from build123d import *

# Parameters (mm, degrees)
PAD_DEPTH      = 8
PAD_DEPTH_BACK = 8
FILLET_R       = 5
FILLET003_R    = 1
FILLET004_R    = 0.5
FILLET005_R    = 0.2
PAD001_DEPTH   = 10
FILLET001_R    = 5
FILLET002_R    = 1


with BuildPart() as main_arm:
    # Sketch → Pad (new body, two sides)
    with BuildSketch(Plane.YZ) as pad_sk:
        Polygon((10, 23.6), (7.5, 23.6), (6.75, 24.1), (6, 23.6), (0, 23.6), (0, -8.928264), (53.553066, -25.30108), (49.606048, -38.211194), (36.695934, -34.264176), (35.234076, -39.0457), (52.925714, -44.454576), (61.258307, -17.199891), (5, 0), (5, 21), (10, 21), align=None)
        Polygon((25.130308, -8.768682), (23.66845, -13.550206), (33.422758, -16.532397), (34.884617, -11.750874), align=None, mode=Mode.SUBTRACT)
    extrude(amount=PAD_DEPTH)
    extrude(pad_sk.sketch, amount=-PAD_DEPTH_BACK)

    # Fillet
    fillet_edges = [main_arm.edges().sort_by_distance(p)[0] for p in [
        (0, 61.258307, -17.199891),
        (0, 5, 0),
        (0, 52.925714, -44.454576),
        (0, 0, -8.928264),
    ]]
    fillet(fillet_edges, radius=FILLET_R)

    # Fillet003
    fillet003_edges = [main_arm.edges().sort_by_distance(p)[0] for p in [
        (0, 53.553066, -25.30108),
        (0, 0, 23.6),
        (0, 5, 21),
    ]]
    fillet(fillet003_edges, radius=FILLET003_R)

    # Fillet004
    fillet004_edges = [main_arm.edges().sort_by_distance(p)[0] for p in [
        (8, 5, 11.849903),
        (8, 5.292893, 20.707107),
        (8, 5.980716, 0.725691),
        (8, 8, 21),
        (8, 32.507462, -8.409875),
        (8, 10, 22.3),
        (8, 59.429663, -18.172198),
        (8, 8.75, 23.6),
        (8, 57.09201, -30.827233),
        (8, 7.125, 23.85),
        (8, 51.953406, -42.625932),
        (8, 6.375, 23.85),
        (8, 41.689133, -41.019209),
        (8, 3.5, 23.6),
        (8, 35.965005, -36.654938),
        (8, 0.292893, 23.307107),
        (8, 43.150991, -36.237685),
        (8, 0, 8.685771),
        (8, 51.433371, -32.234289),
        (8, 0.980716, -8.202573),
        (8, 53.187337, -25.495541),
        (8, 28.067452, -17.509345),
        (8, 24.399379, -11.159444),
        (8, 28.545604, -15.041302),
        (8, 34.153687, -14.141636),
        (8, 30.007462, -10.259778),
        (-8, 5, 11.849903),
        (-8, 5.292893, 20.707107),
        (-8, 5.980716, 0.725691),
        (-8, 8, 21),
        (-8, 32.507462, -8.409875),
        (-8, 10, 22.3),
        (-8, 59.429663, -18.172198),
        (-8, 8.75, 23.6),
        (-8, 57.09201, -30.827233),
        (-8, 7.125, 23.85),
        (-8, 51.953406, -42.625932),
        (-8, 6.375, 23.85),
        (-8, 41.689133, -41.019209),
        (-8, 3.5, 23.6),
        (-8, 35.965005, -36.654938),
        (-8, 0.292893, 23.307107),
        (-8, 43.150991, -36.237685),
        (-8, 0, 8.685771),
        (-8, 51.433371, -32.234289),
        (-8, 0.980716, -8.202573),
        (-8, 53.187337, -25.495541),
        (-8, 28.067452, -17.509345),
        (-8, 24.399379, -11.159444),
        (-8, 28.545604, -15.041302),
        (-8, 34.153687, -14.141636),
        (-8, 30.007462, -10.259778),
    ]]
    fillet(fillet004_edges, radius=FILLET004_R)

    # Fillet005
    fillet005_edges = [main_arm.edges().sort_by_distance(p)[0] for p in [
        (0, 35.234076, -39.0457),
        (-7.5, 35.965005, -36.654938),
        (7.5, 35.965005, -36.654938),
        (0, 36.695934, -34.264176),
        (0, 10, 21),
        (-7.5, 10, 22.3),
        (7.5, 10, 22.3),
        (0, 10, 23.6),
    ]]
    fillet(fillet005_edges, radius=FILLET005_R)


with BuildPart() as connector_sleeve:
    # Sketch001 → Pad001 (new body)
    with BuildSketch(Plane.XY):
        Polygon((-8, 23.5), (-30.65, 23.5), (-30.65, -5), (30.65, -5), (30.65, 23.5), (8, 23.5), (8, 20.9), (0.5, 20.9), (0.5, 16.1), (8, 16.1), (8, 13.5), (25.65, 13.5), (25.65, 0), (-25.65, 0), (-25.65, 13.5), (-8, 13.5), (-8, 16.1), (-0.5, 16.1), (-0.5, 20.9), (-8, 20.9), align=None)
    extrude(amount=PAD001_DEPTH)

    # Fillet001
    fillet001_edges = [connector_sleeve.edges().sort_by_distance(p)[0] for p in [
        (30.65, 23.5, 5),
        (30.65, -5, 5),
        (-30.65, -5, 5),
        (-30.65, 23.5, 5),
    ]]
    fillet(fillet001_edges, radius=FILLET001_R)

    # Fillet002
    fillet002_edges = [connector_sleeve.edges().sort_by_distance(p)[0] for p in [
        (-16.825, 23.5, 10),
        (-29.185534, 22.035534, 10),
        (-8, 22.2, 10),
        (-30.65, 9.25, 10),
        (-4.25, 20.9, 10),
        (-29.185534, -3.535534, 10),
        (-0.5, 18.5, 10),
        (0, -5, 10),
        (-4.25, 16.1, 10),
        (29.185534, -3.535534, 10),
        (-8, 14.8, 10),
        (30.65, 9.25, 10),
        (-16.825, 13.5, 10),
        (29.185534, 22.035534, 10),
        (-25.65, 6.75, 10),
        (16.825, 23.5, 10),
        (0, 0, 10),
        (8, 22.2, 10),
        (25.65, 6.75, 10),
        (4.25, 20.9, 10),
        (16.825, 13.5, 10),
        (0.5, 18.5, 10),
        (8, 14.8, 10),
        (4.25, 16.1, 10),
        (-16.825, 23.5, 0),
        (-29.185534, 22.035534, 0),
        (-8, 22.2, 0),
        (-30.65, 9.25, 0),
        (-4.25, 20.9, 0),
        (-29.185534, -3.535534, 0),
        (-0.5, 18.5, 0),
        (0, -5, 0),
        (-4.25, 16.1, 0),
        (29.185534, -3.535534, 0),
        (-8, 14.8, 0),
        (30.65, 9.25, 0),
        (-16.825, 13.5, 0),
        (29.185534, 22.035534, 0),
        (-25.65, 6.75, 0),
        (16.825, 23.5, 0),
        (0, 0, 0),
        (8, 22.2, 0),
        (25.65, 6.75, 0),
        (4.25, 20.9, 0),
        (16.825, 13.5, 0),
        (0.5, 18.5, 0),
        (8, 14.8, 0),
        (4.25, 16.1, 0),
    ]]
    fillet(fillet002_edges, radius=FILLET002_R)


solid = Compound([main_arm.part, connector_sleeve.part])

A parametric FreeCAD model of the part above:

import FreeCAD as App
import Part
import Sketcher
from FreeCAD import Vector
Q = App.Units.Quantity


def edges_at(feature, points):
    """Names of the edges that pass closest to the given points."""
    edges = feature.Shape.Edges
    near = lambda p: min(range(len(edges)), key=lambda i: edges[i].distToShape(Part.Vertex(*p))[0])
    return sorted({f"Edge{near(p) + 1}" for p in points})


def add_polygon(sketch, points):
    """Adds a closed chain of lines whose ends are joined by coincident constraints."""
    first, n = sketch.GeometryCount, len(points)
    for a, b in zip(points, points[1:] + points[:1]):
        sketch.addGeometry(Part.LineSegment(App.Vector(*a, 0), App.Vector(*b, 0)), False)
    for i in range(n):
        sketch.addConstraint(Sketcher.Constraint("Coincident", first + i, 2, first + (i + 1) % n, 1))

doc = App.newDocument("Part")
body = doc.addObject("PartDesign::Body", "Body")

sketch1 = doc.addObject("Sketcher::SketchObject", "Sketch")
body.addObject(sketch1)
sketch1.AttachmentSupport = (doc.YZ_Plane, [""])
sketch1.MapMode = "FlatFace"
add_polygon(sketch1, [(10, 23.6), (7.5, 23.6), (6.75, 24.1), (6, 23.6), (0, 23.6), (0, -8.928264), (53.553066, -25.30108), (49.606048, -38.211194), (36.695934, -34.264176), (35.234076, -39.0457), (52.925714, -44.454576), (61.258307, -17.199891), (5, 0), (5, 21), (10, 21)])
add_polygon(sketch1, [(23.66845, -13.550206), (25.130308, -8.768682), (34.884617, -11.750874), (33.422758, -16.532397)])
sketch1.addConstraint(Sketcher.Constraint("Horizontal", 0))
sketch1.addConstraint(Sketcher.Constraint("Horizontal", 3))
sketch1.addConstraint(Sketcher.Constraint("Vertical", 4))
sketch1.addConstraint(Sketcher.Constraint("Vertical", 12))
sketch1.addConstraint(Sketcher.Constraint("Horizontal", 13))
sketch1.addConstraint(Sketcher.Constraint("Vertical", 14))
sketch1.addConstraint(Sketcher.Constraint("PointOnObject", 3, 2, -2))
sketch1.addConstraint(Sketcher.Constraint("PointOnObject", 11, 2, -1))
sketch1.addConstraint(Sketcher.Constraint("Perpendicular", 5, 6))
sketch1.addConstraint(Sketcher.Constraint("Perpendicular", 6, 7))
sketch1.addConstraint(Sketcher.Constraint("Perpendicular", 7, 8))
sketch1.addConstraint(Sketcher.Constraint("Perpendicular", 8, 9))
sketch1.addConstraint(Sketcher.Constraint("Perpendicular", 9, 10))
sketch1.addConstraint(Sketcher.Constraint("Perpendicular", 10, 11))
sketch1.addConstraint(Sketcher.Constraint("Perpendicular", 11, 15))
sketch1.addConstraint(Sketcher.Constraint("Perpendicular", 15, 16))
sketch1.addConstraint(Sketcher.Constraint("Perpendicular", 16, 17))
sketch1.addConstraint(Sketcher.Constraint("Perpendicular", 17, 18))
sketch1.addConstraint(Sketcher.Constraint("Horizontal", 0, 2, 2, 2))
sketch1.addConstraint(Sketcher.Constraint("Equal", 1, 2))
sketch1.addConstraint(Sketcher.Constraint("Equal", 6, 7))
sketch1.addConstraint(Sketcher.Constraint("Equal", 8, 15))
sketch1.addConstraint(Sketcher.Constraint("DistanceX", 3, 2, 3, 1, Q("6 mm")))
sketch1.addConstraint(Sketcher.Constraint("DistanceX", 13, 1, 13, 2, Q("5 mm")))
sketch1.addConstraint(Sketcher.Constraint("DistanceY", 12, 1, 12, 2, Q("21 mm")))
sketch1.addConstraint(Sketcher.Constraint("Angle", 5, Q("-17.000001 deg")))
sketch1.addConstraint(Sketcher.Constraint("Distance", 5, Q("56 mm")))
sketch1.addConstraint(Sketcher.Constraint("Distance", 8, Q("5 mm")))
sketch1.addConstraint(Sketcher.Constraint("DistanceX", 0, 2, 0, 1, Q("2.5 mm")))
sketch1.addConstraint(Sketcher.Constraint("DistanceY", 14, 1, 14, 2, Q("2.6 mm")))
sketch1.addConstraint(Sketcher.Constraint("DistanceX", -1, 1, 11, 2, Q("5 mm")))
sketch1.addConstraint(Sketcher.Constraint("Distance", 6, Q("13.5 mm")))
sketch1.addConstraint(Sketcher.Constraint("Distance", 9, Q("18.5 mm")))
sketch1.addConstraint(Sketcher.Constraint("Distance", 10, Q("28.499999 mm")))
sketch1.addConstraint(Sketcher.Constraint("Distance", 16, Q("10.200001 mm")))
sketch1.addConstraint(Sketcher.Constraint("DistanceY", -1, 1, 1, 2, Q("24.1 mm")))
sketch1.addConstraint(Sketcher.Constraint("DistanceY", 5, 2, 15, 2, Q("16.532398 mm")))
sketch1.addConstraint(Sketcher.Constraint("DistanceX", -1, 1, 17, 2, Q("33.422758 mm")))
pad1 = doc.addObject("PartDesign::Pad", "Pad")
body.addObject(pad1)
pad1.Profile = sketch1
pad1.Type = "TwoLengths"
pad1.Length = 8
pad1.Length2 = 8
doc.recompute()

fillet = doc.addObject("PartDesign::Fillet", "Fillet")
body.addObject(fillet)
fillet.Base = (pad1, edges_at(pad1, [
    (0, 61.258, -17.2),
    (0, 5, 0),
    (0, 52.926, -44.455),
    (0, 0, -8.928),
]))
fillet.Radius = 5
doc.recompute()

fillet2 = doc.addObject("PartDesign::Fillet", "Fillet001")
body.addObject(fillet2)
fillet2.Base = (fillet, edges_at(fillet, [(0, 53.553, -25.301), (0, 0, 23.6), (0, 5, 21)]))
fillet2.Radius = 1
doc.recompute()

fillet3 = doc.addObject("PartDesign::Fillet", "Fillet002")
body.addObject(fillet3)
fillet3.Base = (fillet2, edges_at(fillet2, [
    (8, 5, 11.85),
    (8, 5.293, 20.707),
    (8, 5.981, 0.726),
    (8, 8, 21),
    (8, 32.507, -8.41),
    (8, 10, 22.3),
    (8, 59.43, -18.172),
    (8, 8.75, 23.6),
    (8, 57.092, -30.827),
    (8, 7.125, 23.85),
    (8, 51.953, -42.626),
    (8, 6.375, 23.85),
    (8, 41.689, -41.019),
    (8, 3.5, 23.6),
    (8, 35.965, -36.655),
    (8, 0.293, 23.307),
    (8, 43.151, -36.238),
    (8, 0, 8.686),
    (8, 51.433, -32.234),
    (8, 0.981, -8.203),
    (8, 53.187, -25.496),
    (8, 28.067, -17.509),
    (8, 24.399, -11.159),
    (8, 28.546, -15.041),
    (8, 34.154, -14.142),
    (8, 30.007, -10.26),
    (-8, 5, 11.85),
    (-8, 5.293, 20.707),
    (-8, 5.981, 0.726),
    (-8, 8, 21),
    (-8, 32.507, -8.41),
    (-8, 10, 22.3),
    (-8, 59.43, -18.172),
    (-8, 8.75, 23.6),
    (-8, 57.092, -30.827),
    (-8, 7.125, 23.85),
    (-8, 51.953, -42.626),
    (-8, 6.375, 23.85),
    (-8, 41.689, -41.019),
    (-8, 3.5, 23.6),
    (-8, 35.965, -36.655),
    (-8, 0.293, 23.307),
    (-8, 43.151, -36.238),
    (-8, 0, 8.686),
    (-8, 51.433, -32.234),
    (-8, 0.981, -8.203),
    (-8, 53.187, -25.496),
    (-8, 28.067, -17.509),
    (-8, 24.399, -11.159),
    (-8, 28.546, -15.041),
    (-8, 34.154, -14.142),
    (-8, 30.007, -10.26),
]))
fillet3.Radius = 0.5
doc.recompute()

fillet4 = doc.addObject("PartDesign::Fillet", "Fillet003")
body.addObject(fillet4)
fillet4.Base = (fillet3, edges_at(fillet3, [
    (0, 35.234, -39.046),
    (-7.5, 35.965, -36.655),
    (7.5, 35.965, -36.655),
    (0, 36.696, -34.264),
    (0, 10, 21),
    (-7.5, 10, 22.3),
    (7.5, 10, 22.3),
    (0, 10, 23.6),
]))
fillet4.Radius = 0.2
body2 = doc.addObject("PartDesign::Body", "Body001")

sketch2 = doc.addObject("Sketcher::SketchObject", "Sketch001")
body2.addObject(sketch2)
sketch2.AttachmentSupport = (doc.getObject("XY_Plane001"), [""])
sketch2.MapMode = "FlatFace"
add_polygon(sketch2, [(-8, 23.5), (-30.65, 23.5), (-30.65, -5), (30.65, -5), (30.65, 23.5), (8, 23.5), (8, 20.9), (0.5, 20.9), (0.5, 16.1), (8, 16.1), (8, 13.5), (25.65, 13.5), (25.65, 0), (-25.65, 0), (-25.65, 13.5), (-8, 13.5), (-8, 16.1), (-0.5, 16.1), (-0.5, 20.9), (-8, 20.9)])
sketch2.addConstraint(Sketcher.Constraint("Horizontal", 0))
sketch2.addConstraint(Sketcher.Constraint("Vertical", 1))
sketch2.addConstraint(Sketcher.Constraint("Horizontal", 2))
sketch2.addConstraint(Sketcher.Constraint("Vertical", 3))
sketch2.addConstraint(Sketcher.Constraint("Horizontal", 4))
sketch2.addConstraint(Sketcher.Constraint("Vertical", 5))
sketch2.addConstraint(Sketcher.Constraint("Horizontal", 6))
sketch2.addConstraint(Sketcher.Constraint("Vertical", 7))
sketch2.addConstraint(Sketcher.Constraint("Horizontal", 8))
sketch2.addConstraint(Sketcher.Constraint("Vertical", 9))
sketch2.addConstraint(Sketcher.Constraint("Horizontal", 10))
sketch2.addConstraint(Sketcher.Constraint("Vertical", 11))
sketch2.addConstraint(Sketcher.Constraint("Horizontal", 12))
sketch2.addConstraint(Sketcher.Constraint("Vertical", 13))
sketch2.addConstraint(Sketcher.Constraint("Horizontal", 14))
sketch2.addConstraint(Sketcher.Constraint("Vertical", 15))
sketch2.addConstraint(Sketcher.Constraint("Horizontal", 16))
sketch2.addConstraint(Sketcher.Constraint("Vertical", 17))
sketch2.addConstraint(Sketcher.Constraint("Horizontal", 18))
sketch2.addConstraint(Sketcher.Constraint("Vertical", 19))
sketch2.addConstraint(Sketcher.Constraint("Symmetric", 11, 2, 12, 2, -1, 1))
sketch2.addConstraint(Sketcher.Constraint("Symmetric", 0, 2, 3, 2, -2))
sketch2.addConstraint(Sketcher.Constraint("Symmetric", 9, 2, 14, 2, -2))
sketch2.addConstraint(Sketcher.Constraint("Symmetric", 7, 2, 16, 2, -2))
sketch2.addConstraint(Sketcher.Constraint("Symmetric", 5, 2, 18, 2, -2))
sketch2.addConstraint(Sketcher.Constraint("Vertical", 5, 2, 8, 2))
sketch2.addConstraint(Sketcher.Constraint("Equal", 5, 9))
sketch2.addConstraint(Sketcher.Constraint("DistanceX", 2, 1, 2, 2, Q("61.3 mm")))
sketch2.addConstraint(Sketcher.Constraint("DistanceX", 6, 2, 6, 1, Q("7.5 mm")))
sketch2.addConstraint(Sketcher.Constraint("DistanceX", 12, 2, 12, 1, Q("51.3 mm")))
sketch2.addConstraint(Sketcher.Constraint("DistanceY", 1, 2, 1, 1, Q("28.5 mm")))
sketch2.addConstraint(Sketcher.Constraint("DistanceY", 5, 2, 5, 1, Q("2.6 mm")))
sketch2.addConstraint(Sketcher.Constraint("DistanceY", 7, 2, 7, 1, Q("4.8 mm")))
sketch2.addConstraint(Sketcher.Constraint("DistanceY", 11, 2, 11, 1, Q("13.5 mm")))
sketch2.addConstraint(Sketcher.Constraint("DistanceX", -1, 1, 4, 2, Q("8 mm")))
pad2 = doc.addObject("PartDesign::Pad", "Pad001")
body2.addObject(pad2)
pad2.Profile = sketch2
pad2.Length = 10
doc.recompute()

fillet5 = doc.addObject("PartDesign::Fillet", "Fillet004")
body2.addObject(fillet5)
fillet5.Base = (pad2, edges_at(pad2, [
    (30.65, 23.5, 5),
    (30.65, -5, 5),
    (-30.65, -5, 5),
    (-30.65, 23.5, 5),
]))
fillet5.Radius = 5
doc.recompute()

fillet6 = doc.addObject("PartDesign::Fillet", "Fillet005")
body2.addObject(fillet6)
fillet6.Base = (fillet5, edges_at(fillet5, [
    (-16.825, 23.5, 10),
    (-29.186, 22.036, 10),
    (-8, 22.2, 10),
    (-30.65, 9.25, 10),
    (-4.25, 20.9, 10),
    (-29.186, -3.536, 10),
    (-0.5, 18.5, 10),
    (0, -5, 10),
    (-4.25, 16.1, 10),
    (29.186, -3.536, 10),
    (-8, 14.8, 10),
    (30.65, 9.25, 10),
    (-16.825, 13.5, 10),
    (29.186, 22.036, 10),
    (-25.65, 6.75, 10),
    (16.825, 23.5, 10),
    (0, 0, 10),
    (8, 22.2, 10),
    (25.65, 6.75, 10),
    (4.25, 20.9, 10),
    (16.825, 13.5, 10),
    (0.5, 18.5, 10),
    (8, 14.8, 10),
    (4.25, 16.1, 10),
    (-16.825, 23.5, 0),
    (-29.186, 22.036, 0),
    (-8, 22.2, 0),
    (-30.65, 9.25, 0),
    (-4.25, 20.9, 0),
    (-29.186, -3.536, 0),
    (-0.5, 18.5, 0),
    (0, -5, 0),
    (-4.25, 16.1, 0),
    (29.186, -3.536, 0),
    (-8, 14.8, 0),
    (30.65, 9.25, 0),
    (-16.825, 13.5, 0),
    (29.186, 22.036, 0),
    (-25.65, 6.75, 0),
    (16.825, 23.5, 0),
    (0, 0, 0),
    (8, 22.2, 0),
    (25.65, 6.75, 0),
    (4.25, 20.9, 0),
    (16.825, 13.5, 0),
    (0.5, 18.5, 0),
    (8, 14.8, 0),
    (4.25, 16.1, 0),
]))
fillet6.Radius = 1

doc.recompute()
